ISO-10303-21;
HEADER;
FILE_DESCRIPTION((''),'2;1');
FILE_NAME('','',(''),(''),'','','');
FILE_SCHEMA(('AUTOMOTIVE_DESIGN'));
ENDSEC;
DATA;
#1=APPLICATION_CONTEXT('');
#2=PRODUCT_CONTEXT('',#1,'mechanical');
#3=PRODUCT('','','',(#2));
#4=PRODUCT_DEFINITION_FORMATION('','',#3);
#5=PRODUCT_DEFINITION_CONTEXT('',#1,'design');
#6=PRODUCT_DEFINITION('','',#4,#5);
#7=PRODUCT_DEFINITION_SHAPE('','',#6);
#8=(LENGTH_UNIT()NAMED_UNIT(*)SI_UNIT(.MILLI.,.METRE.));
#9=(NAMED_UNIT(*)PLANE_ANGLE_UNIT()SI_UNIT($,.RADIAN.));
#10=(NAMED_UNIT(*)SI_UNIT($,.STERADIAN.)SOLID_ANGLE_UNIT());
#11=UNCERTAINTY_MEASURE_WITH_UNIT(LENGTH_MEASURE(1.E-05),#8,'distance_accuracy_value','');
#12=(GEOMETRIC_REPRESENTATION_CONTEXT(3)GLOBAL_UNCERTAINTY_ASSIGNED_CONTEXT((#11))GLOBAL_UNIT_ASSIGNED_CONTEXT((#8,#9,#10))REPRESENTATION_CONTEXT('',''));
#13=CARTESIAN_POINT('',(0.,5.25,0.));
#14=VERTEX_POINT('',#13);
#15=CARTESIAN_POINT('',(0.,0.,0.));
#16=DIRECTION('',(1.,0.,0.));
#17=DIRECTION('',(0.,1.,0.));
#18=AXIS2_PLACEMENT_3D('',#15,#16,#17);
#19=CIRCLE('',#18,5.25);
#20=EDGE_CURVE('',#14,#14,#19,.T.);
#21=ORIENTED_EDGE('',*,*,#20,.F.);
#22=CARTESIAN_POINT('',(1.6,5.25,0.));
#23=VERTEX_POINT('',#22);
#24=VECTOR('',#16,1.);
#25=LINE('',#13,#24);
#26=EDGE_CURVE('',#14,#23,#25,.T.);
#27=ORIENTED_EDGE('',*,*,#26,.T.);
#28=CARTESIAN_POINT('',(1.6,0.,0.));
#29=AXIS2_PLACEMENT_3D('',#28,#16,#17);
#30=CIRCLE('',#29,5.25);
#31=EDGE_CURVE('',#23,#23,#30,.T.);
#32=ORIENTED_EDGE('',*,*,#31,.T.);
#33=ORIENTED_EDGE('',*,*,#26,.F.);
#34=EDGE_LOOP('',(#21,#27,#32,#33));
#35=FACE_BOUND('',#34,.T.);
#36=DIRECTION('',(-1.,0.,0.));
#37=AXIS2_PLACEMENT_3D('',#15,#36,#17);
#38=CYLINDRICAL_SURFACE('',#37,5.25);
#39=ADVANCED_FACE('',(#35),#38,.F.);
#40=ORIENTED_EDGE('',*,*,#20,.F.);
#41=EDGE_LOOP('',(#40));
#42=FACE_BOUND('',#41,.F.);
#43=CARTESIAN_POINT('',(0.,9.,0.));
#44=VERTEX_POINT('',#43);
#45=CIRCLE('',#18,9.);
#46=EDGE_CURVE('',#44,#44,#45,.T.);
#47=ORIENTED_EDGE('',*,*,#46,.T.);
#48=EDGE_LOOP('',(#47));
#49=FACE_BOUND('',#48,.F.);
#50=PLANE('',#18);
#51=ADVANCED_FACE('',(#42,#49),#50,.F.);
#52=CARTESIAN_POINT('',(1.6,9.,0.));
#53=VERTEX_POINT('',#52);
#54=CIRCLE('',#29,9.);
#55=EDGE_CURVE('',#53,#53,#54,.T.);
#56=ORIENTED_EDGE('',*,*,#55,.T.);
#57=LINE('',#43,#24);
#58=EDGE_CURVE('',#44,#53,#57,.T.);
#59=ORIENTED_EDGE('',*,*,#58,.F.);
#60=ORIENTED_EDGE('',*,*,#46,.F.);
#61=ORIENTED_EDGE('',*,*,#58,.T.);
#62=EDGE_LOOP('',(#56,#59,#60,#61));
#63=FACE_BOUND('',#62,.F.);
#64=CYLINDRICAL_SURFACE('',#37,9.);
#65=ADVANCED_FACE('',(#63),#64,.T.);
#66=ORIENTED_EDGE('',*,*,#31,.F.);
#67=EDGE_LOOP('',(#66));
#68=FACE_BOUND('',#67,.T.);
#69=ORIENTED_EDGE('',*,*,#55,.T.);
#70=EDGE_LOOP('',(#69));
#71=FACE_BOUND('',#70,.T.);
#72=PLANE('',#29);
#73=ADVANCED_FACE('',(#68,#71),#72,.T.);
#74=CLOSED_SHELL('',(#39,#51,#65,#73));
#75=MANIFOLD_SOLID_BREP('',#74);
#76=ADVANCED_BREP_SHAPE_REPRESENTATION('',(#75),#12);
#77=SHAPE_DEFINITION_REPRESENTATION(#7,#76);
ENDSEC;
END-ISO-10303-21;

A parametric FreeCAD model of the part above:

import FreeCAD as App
import Part
import Sketcher

V = App.Vector
Q = App.Units.Quantity

doc = App.newDocument("Part")
params = doc.addObject("Spreadsheet::Sheet", "Params")
for row, (alias, value) in enumerate([
    ("sketch1_diameter", "18 mm"),
    ("sketch1_diameter2", "10.5 mm"),
    ("pad1_length", "1.6 mm"),
], start=1):
    params.set(f"A{row}", alias)
    params.set(f"B{row}", "=" + value)
    params.setAlias(f"B{row}", alias)

body = doc.addObject("PartDesign::Body", "Body")

# Sketch on YZ plane
sketch1 = doc.addObject("Sketcher::SketchObject", "Sketch")
body.addObject(sketch1)
sketch1.AttachmentSupport = (doc.YZ_Plane, [""])
sketch1.MapMode = "FlatFace"
sketch1.addGeometry([
    Part.Circle(V(0, 0, 0), V(0, 0, 1), 9),
    Part.Circle(V(0, 0, 0), V(0, 0, 1), 5.25),
], False)
sketch1.addConstraint([
    Sketcher.Constraint("Coincident", 0, 3, -1, 1),
    Sketcher.Constraint("Coincident", 1, 3, -1, 1),
    Sketcher.Constraint("Diameter", 0, Q("18 mm")),
    Sketcher.Constraint("Diameter", 1, Q("10.5 mm")),
])
sketch1.setExpression("Constraints[2]", "Params.sketch1_diameter")
sketch1.setExpression("Constraints[3]", "Params.sketch1_diameter2")
pad1 = doc.addObject("PartDesign::Pad", "Pad")
body.addObject(pad1)
pad1.Profile = sketch1
pad1.setExpression("Length", "Params.pad1_length")

doc.recompute()
